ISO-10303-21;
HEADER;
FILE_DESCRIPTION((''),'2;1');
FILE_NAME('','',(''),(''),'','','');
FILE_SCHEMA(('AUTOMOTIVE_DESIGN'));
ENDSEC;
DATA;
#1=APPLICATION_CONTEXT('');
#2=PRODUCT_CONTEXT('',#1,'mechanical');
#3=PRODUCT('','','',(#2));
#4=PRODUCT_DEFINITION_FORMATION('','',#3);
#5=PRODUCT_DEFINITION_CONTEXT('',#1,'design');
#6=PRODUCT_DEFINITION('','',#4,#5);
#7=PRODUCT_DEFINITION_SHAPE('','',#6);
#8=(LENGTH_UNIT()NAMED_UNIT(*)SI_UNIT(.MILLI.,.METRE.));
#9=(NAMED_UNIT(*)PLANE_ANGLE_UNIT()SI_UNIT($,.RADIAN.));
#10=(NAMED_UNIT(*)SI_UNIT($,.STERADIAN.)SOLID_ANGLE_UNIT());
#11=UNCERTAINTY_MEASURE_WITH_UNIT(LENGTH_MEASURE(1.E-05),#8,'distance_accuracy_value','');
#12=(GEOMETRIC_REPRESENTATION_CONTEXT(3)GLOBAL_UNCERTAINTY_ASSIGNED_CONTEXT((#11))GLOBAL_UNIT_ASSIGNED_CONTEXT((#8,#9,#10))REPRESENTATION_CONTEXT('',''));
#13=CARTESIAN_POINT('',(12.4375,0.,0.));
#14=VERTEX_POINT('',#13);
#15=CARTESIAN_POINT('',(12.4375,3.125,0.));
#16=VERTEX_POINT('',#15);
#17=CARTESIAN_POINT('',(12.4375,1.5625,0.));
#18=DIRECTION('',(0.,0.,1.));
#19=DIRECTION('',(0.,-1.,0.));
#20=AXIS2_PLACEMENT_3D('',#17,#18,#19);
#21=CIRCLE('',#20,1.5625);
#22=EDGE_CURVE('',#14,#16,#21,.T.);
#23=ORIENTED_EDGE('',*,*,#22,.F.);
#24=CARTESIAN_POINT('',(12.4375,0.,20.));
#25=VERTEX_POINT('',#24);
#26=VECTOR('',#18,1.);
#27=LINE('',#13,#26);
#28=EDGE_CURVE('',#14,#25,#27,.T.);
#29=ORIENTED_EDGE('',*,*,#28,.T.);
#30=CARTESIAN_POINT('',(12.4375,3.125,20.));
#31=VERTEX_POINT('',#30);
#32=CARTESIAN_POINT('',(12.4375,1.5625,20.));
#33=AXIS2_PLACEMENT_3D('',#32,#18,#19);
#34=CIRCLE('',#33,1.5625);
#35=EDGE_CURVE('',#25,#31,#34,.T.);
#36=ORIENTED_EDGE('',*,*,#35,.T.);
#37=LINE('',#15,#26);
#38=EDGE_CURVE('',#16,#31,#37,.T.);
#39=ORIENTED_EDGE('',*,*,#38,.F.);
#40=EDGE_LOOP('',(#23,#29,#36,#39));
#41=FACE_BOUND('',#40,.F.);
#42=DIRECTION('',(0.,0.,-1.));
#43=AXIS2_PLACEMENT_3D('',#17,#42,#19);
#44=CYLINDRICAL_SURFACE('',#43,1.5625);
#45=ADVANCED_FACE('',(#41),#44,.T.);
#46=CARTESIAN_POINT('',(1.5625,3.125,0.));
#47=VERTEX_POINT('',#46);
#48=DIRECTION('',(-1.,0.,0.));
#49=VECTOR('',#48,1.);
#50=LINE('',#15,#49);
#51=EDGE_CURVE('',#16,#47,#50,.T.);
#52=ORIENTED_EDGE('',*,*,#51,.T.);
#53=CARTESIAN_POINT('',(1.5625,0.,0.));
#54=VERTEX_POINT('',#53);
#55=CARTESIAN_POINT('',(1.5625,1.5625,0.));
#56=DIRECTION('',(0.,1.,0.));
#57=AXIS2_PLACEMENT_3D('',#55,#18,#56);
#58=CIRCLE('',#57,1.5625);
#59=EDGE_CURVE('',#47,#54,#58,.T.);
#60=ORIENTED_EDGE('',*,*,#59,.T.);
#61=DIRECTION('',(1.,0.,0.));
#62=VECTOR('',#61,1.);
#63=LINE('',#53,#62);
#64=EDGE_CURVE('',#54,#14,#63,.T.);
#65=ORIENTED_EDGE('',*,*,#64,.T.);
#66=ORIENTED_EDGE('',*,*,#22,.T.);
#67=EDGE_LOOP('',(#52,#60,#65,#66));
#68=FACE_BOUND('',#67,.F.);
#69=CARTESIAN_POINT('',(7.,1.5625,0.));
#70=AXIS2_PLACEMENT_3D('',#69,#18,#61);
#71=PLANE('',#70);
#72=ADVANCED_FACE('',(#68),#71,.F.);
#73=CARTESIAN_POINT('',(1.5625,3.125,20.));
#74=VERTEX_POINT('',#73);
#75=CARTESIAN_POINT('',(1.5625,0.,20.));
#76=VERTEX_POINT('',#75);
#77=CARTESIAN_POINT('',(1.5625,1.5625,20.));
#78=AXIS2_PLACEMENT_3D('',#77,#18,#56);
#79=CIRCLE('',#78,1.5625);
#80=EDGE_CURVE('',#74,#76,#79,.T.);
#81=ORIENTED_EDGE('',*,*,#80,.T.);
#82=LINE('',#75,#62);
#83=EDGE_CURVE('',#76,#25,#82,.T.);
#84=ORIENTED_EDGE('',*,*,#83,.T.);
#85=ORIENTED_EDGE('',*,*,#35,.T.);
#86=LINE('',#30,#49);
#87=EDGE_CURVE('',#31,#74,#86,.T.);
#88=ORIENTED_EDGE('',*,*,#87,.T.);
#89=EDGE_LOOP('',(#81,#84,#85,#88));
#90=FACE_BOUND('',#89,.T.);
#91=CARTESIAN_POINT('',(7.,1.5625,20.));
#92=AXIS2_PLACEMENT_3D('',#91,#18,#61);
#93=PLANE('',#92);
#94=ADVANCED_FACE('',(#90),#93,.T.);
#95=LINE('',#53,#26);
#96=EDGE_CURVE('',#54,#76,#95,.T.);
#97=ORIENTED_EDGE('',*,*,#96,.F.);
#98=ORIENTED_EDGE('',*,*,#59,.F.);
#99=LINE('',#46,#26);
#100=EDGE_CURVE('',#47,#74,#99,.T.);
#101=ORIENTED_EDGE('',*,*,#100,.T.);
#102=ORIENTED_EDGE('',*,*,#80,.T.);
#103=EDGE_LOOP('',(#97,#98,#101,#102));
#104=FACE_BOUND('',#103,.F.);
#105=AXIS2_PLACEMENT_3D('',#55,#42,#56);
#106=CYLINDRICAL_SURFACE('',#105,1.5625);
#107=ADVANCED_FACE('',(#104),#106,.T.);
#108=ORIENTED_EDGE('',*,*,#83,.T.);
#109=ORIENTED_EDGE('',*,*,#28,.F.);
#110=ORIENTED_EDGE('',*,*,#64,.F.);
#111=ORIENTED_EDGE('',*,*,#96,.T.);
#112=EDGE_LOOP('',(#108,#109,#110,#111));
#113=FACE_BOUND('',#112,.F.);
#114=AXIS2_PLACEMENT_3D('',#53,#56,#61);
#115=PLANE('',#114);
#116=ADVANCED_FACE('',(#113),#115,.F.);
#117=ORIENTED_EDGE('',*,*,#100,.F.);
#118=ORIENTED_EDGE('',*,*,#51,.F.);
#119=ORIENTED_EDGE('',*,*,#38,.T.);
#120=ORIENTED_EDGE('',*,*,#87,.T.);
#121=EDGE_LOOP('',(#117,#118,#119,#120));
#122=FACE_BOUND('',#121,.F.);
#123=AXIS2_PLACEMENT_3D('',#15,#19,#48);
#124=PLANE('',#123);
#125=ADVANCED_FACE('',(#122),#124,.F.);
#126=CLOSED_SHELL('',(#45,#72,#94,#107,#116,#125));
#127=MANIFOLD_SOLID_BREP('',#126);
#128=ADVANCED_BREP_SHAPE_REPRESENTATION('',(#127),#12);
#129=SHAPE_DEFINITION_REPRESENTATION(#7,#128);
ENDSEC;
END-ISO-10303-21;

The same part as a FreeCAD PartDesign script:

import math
import FreeCAD as App
import Part
import Sketcher

doc = App.newDocument("Part")
body = doc.addObject("PartDesign::Body", "Body")

# Sketch on XY plane
sketch1 = doc.addObject("Sketcher::SketchObject", "Sketch")
body.addObject(sketch1)
sketch1.AttachmentSupport = (doc.XY_Plane, [""])
sketch1.MapMode = "FlatFace"
sketch1.addGeometry(Part.LineSegment(App.Vector(1.6, 0, 0), App.Vector(12.4, 0, 0)), False)
sketch1.addGeometry(Part.ArcOfCircle(Part.Circle(App.Vector(12.4, 1.6, 0), App.Vector(0, 0, 1), 1.6), math.radians(-90), math.radians(90)), False)
sketch1.addGeometry(Part.LineSegment(App.Vector(12.4, 3.1, 0), App.Vector(1.6, 3.1, 0)), False)
sketch1.addGeometry(Part.ArcOfCircle(Part.Circle(App.Vector(1.6, 1.6, 0), App.Vector(0, 0, 1), 1.6), math.radians(90), math.radians(270)), False)
sketch1.addConstraint(Sketcher.Constraint("Tangent", 0, 2, 1, 1))
sketch1.addConstraint(Sketcher.Constraint("Tangent", 1, 2, 2, 1))
sketch1.addConstraint(Sketcher.Constraint("Tangent", 2, 2, 3, 1))
sketch1.addConstraint(Sketcher.Constraint("Tangent", 3, 2, 0, 1))
sketch1.addConstraint(Sketcher.Constraint("Horizontal", 0))
sketch1.addConstraint(Sketcher.Constraint("Horizontal", 2))
sketch1.addConstraint(Sketcher.Constraint("PointOnObject", 0, 2, -1))
sketch1.addConstraint(Sketcher.Constraint("Radius", 1, 1.5625))
sketch1.addConstraint(Sketcher.Constraint("DistanceX", 0, 1, 0, 2, 10.875))
sketch1.addConstraint(Sketcher.Constraint("DistanceX", -1, 1, 1, 3, 12.4375))
pad1 = doc.addObject("PartDesign::Pad", "Pad")
body.addObject(pad1)
pad1.Profile = sketch1
pad1.Length = 20

doc.recompute()
